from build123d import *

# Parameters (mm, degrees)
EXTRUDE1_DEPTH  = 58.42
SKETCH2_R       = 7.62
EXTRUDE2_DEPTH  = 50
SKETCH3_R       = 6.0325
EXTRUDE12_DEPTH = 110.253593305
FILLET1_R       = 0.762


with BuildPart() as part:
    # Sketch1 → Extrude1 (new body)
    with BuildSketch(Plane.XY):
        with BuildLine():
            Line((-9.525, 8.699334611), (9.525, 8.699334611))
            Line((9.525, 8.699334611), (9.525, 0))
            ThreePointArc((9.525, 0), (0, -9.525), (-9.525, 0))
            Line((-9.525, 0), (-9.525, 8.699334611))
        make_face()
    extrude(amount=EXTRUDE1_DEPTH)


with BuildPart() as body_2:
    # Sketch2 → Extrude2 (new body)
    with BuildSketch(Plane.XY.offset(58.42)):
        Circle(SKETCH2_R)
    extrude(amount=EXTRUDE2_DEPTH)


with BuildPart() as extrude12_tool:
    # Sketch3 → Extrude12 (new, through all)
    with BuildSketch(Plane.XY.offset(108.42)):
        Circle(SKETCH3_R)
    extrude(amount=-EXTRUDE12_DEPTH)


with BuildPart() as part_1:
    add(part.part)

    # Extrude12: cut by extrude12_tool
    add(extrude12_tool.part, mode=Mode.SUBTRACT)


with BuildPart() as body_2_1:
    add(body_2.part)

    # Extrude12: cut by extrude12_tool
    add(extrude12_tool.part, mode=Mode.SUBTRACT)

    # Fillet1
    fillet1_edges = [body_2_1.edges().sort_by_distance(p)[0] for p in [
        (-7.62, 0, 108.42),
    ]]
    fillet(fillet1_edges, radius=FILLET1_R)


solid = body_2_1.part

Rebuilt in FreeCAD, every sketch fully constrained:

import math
import FreeCAD as App
import Part
import Sketcher
from FreeCAD import Vector
Q = App.Units.Quantity


def edges_at(feature, points):
    """Names of the edges that pass closest to the given points."""
    edges = feature.Shape.Edges
    near = lambda p: min(range(len(edges)), key=lambda i: edges[i].distToShape(Part.Vertex(*p))[0])
    return sorted({f"Edge{near(p) + 1}" for p in points})

doc = App.newDocument("Part")
body = doc.addObject("PartDesign::Body", "Body")

sketch1 = doc.addObject("Sketcher::SketchObject", "Sketch")
body.addObject(sketch1)
sketch1.AttachmentSupport = (doc.XY_Plane, [""])
sketch1.MapMode = "FlatFace"
sketch1.addGeometry(Part.LineSegment(Vector(9.525, 8.699335, 0), Vector(-9.525, 8.699335, 0)), False)
sketch1.addGeometry(Part.LineSegment(Vector(-9.525, 8.699335, 0), Vector(-9.525, 0, 0)), False)
sketch1.addGeometry(Part.ArcOfCircle(Part.Circle(Vector(0, 0, 0), Vector(0, 0, 1), 9.525), math.radians(180), math.radians(360)), False)
sketch1.addGeometry(Part.LineSegment(Vector(9.525, 0, 0), Vector(9.525, 8.699335, 0)), False)
sketch1.addConstraint(Sketcher.Constraint("Coincident", 0, 2, 1, 1))
sketch1.addConstraint(Sketcher.Constraint("Tangent", 1, 2, 2, 1))
sketch1.addConstraint(Sketcher.Constraint("Tangent", 2, 2, 3, 1))
sketch1.addConstraint(Sketcher.Constraint("Coincident", 3, 2, 0, 1))
sketch1.addConstraint(Sketcher.Constraint("Horizontal", 0))
sketch1.addConstraint(Sketcher.Constraint("Vertical", 1))
sketch1.addConstraint(Sketcher.Constraint("Vertical", 3))
sketch1.addConstraint(Sketcher.Constraint("Coincident", 2, 3, -1, 1))
sketch1.addConstraint(Sketcher.Constraint("Radius", 2, Q("0.375 in")))
sketch1.addConstraint(Sketcher.Constraint("DistanceY", 1, 2, 1, 1, Q("8.699335 mm")))
pad1 = doc.addObject("PartDesign::Pad", "Pad")
body.addObject(pad1)
pad1.Profile = sketch1
pad1.Length = Q("2.3 in")
body2 = doc.addObject("PartDesign::Body", "Body001")

sketch2 = doc.addObject("Sketcher::SketchObject", "Sketch001")
body2.addObject(sketch2)
sketch2.AttachmentSupport = (doc.getObject("XY_Plane001"), [""])
sketch2.MapMode = "FlatFace"
sketch2.AttachmentOffset = App.Placement(Vector(0, 0, 2.3 * 25.4), App.Rotation())
sketch2.addGeometry(Part.Circle(Vector(0, 0, 0), Vector(0, 0, 1), 7.62), False)
sketch2.addConstraint(Sketcher.Constraint("Coincident", 0, 3, -1, 1))
sketch2.addConstraint(Sketcher.Constraint("Diameter", 0, Q("0.6 in")))
pad2 = doc.addObject("PartDesign::Pad", "Pad001")
body2.addObject(pad2)
pad2.Profile = sketch2
pad2.Length = 50
body3 = doc.addObject("PartDesign::Body", "Body002")

sketch3 = doc.addObject("Sketcher::SketchObject", "Sketch002")
body3.addObject(sketch3)
sketch3.AttachmentSupport = (doc.getObject("XY_Plane002"), [""])
sketch3.MapMode = "FlatFace"
sketch3.AttachmentOffset = App.Placement(Vector(0, 0, 108.42), App.Rotation())
sketch3.addGeometry(Part.Circle(Vector(0, 0, 0), Vector(0, 0, 1), 6.0325), False)
sketch3.addConstraint(Sketcher.Constraint("Coincident", 0, 3, -1, 1))
sketch3.addConstraint(Sketcher.Constraint("Diameter", 0, Q("0.475 in")))
pad3 = doc.addObject("PartDesign::Pad", "Pad002")
body3.addObject(pad3)
pad3.Profile = sketch3
pad3.Length = 110.253593
pad3.Reversed = True
doc.recompute()

body4 = doc.addObject("PartDesign::Body", "Body003")
body4.BaseFeature = body3
boolean = doc.addObject("PartDesign::Boolean", "Boolean")
body.addObject(boolean)
boolean.Type = "Cut"
boolean.addObjects([body4])
doc.recompute()

boolean2 = doc.addObject("PartDesign::Boolean", "Boolean001")
body2.addObject(boolean2)
boolean2.Type = "Cut"
boolean2.addObjects([body3])
doc.recompute()

fillet = doc.addObject("PartDesign::Fillet", "Fillet")
body2.addObject(fillet)
fillet.Base = (boolean2, edges_at(boolean2, [(-7.62, 0, 108.42)]))
fillet.Radius = Q("0.03 in")
body.Visibility = False

doc.recompute()
